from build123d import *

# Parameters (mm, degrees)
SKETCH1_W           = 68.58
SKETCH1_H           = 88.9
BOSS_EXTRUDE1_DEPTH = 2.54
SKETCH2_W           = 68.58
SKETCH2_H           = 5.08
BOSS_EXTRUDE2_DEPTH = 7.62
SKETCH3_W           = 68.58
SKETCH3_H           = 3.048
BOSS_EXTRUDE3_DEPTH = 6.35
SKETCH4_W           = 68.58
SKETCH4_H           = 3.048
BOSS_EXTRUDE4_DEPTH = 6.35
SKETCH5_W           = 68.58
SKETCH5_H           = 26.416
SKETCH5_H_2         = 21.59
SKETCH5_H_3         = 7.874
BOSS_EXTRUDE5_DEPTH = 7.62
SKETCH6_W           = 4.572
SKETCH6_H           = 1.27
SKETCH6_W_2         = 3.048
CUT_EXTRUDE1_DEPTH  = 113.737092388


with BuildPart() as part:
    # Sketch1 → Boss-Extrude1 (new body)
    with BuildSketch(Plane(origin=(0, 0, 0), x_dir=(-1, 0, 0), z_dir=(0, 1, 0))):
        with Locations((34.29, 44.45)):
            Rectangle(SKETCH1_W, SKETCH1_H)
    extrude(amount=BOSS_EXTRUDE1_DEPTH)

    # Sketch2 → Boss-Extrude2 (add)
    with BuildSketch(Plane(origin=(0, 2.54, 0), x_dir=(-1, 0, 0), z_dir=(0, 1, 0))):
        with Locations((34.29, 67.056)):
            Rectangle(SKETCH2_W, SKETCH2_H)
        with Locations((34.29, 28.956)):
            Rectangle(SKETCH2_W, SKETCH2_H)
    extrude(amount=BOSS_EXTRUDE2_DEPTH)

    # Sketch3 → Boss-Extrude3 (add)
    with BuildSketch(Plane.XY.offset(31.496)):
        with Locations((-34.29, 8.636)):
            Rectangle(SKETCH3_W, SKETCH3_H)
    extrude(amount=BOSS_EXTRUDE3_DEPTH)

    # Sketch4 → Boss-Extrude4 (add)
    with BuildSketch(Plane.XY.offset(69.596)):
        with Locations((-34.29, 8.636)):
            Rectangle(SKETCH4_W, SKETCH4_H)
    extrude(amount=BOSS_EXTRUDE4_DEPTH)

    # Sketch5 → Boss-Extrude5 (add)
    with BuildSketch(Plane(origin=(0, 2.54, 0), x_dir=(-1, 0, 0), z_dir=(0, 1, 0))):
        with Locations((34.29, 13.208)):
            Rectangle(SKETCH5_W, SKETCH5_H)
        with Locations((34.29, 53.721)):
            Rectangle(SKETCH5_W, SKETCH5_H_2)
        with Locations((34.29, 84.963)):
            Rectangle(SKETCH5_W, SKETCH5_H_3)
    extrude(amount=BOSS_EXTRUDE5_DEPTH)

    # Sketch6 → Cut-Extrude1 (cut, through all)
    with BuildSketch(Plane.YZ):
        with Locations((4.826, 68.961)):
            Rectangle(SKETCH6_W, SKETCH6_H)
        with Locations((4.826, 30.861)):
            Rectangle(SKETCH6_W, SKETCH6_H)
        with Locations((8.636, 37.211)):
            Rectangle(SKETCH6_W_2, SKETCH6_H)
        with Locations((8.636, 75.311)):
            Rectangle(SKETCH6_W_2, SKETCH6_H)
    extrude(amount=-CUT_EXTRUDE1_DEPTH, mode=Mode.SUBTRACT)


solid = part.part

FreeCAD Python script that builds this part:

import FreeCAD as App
import Part
import Sketcher
from FreeCAD import Vector
Q = App.Units.Quantity

doc = App.newDocument("Part")
params = doc.addObject("Spreadsheet::Sheet", "Params")
for row, (alias, value) in enumerate([
    ("sketch1_width", "2.7 in"),
    ("sketch1_height", "3.5 in"),
    ("pad1_length", "0.1 in"),
    ("sketch2_width", "2.7 in"),
    ("sketch2_height", "0.2 in"),
    ("pad2_length", "0.3 in"),
    ("sketch3_width", "2.7 in"),
    ("sketch3_height", "0.12 in"),
    ("pad3_length", "0.25 in"),
    ("sketch4_width", "2.7 in"),
    ("sketch4_height", "0.12 in"),
    ("pad4_length", "0.25 in"),
    ("sketch5_width", "2.7 in"),
    ("sketch5_height", "1.04 in"),
    ("sketch5_height2", "0.85 in"),
    ("sketch5_height3", "0.31 in"),
    ("pad5_length", "0.3 in"),
    ("sketch6_width", "0.18 in"),
    ("sketch6_width2", "0.12 in"),
    ("sketch6_height", "0.05 in"),
], start=1):
    params.set(f"A{row}", alias)
    params.set(f"B{row}", "=" + value)
    params.setAlias(f"B{row}", alias)

body = doc.addObject("PartDesign::Body", "Body")

# Sketch on XZ plane
sketch1 = doc.addObject("Sketcher::SketchObject", "Sketch")
body.addObject(sketch1)
sketch1.AttachmentSupport = (doc.XZ_Plane, [""])
sketch1.MapMode = "FlatFace"
sketch1.addGeometry([
    Part.LineSegment(Vector(0, 88.9, 0), Vector(0, 0, 0)),
    Part.LineSegment(Vector(0, 0, 0), Vector(-68.58, 0, 0)),
    Part.LineSegment(Vector(-68.58, 0, 0), Vector(-68.58, 88.9, 0)),
    Part.LineSegment(Vector(-68.58, 88.9, 0), Vector(0, 88.9, 0)),
], False)
sketch1.addConstraint([
    Sketcher.Constraint("Coincident", 0, 2, 1, 1),
    Sketcher.Constraint("Coincident", 1, 2, 2, 1),
    Sketcher.Constraint("Coincident", 2, 2, 3, 1),
    Sketcher.Constraint("Coincident", 3, 2, 0, 1),
    Sketcher.Constraint("Vertical", 0),
    Sketcher.Constraint("Horizontal", 1),
    Sketcher.Constraint("Vertical", 2),
    Sketcher.Constraint("Horizontal", 3),
    Sketcher.Constraint("Coincident", 0, 2, -1, 1),
    Sketcher.Constraint("DistanceX", 1, 2, 1, 1, Q("2.7 in")),
    Sketcher.Constraint("DistanceY", 0, 2, 0, 1, Q("3.5 in")),
])
sketch1.setExpression("Constraints[9]", "Params.sketch1_width")
sketch1.setExpression("Constraints[10]", "Params.sketch1_height")
pad1 = doc.addObject("PartDesign::Pad", "Pad")
body.addObject(pad1)
pad1.Profile = sketch1
pad1.setExpression("Length", "Params.pad1_length")
pad1.Reversed = True

# Sketch on XZ plane
sketch2 = doc.addObject("Sketcher::SketchObject", "Sketch001")
body.addObject(sketch2)
sketch2.AttachmentSupport = (doc.XZ_Plane, [""])
sketch2.MapMode = "FlatFace"
sketch2.AttachmentOffset = App.Placement(Vector(0, 0, -0.1 * 25.4), App.Rotation())
sketch2.addGeometry([
    Part.LineSegment(Vector(0, 69.596, 0), Vector(0, 64.516, 0)),  # 0
    Part.LineSegment(Vector(0, 64.516, 0), Vector(-68.58, 64.516, 0)),  # 1
    Part.LineSegment(Vector(-68.58, 64.516, 0), Vector(-68.58, 69.596, 0)),  # 2
    Part.LineSegment(Vector(-68.58, 69.596, 0), Vector(0, 69.596, 0)),  # 3
    Part.LineSegment(Vector(0, 31.496, 0), Vector(0, 26.416, 0)),  # 4
    Part.LineSegment(Vector(0, 26.416, 0), Vector(-68.58, 26.416, 0)),  # 5
    Part.LineSegment(Vector(-68.58, 26.416, 0), Vector(-68.58, 31.496, 0)),  # 6
    Part.LineSegment(Vector(-68.58, 31.496, 0), Vector(0, 31.496, 0)),  # 7
], False)
sketch2.addConstraint([
    Sketcher.Constraint("Coincident", 0, 2, 1, 1),
    Sketcher.Constraint("Coincident", 1, 2, 2, 1),
    Sketcher.Constraint("Coincident", 2, 2, 3, 1),
    Sketcher.Constraint("Coincident", 3, 2, 0, 1),
    Sketcher.Constraint("Coincident", 4, 2, 5, 1),
    Sketcher.Constraint("Coincident", 5, 2, 6, 1),
    Sketcher.Constraint("Coincident", 6, 2, 7, 1),
    Sketcher.Constraint("Coincident", 7, 2, 4, 1),
    Sketcher.Constraint("Vertical", 0),
    Sketcher.Constraint("Horizontal", 1),
    Sketcher.Constraint("Vertical", 2),
    Sketcher.Constraint("Horizontal", 3),
    Sketcher.Constraint("Vertical", 4),
    Sketcher.Constraint("Horizontal", 5),
    Sketcher.Constraint("Vertical", 6),
    Sketcher.Constraint("Horizontal", 7),
    Sketcher.Constraint("PointOnObject", 0, 2, -2),
    Sketcher.Constraint("PointOnObject", 4, 2, -2),
    Sketcher.Constraint("Vertical", 2, 2, 5, 2),
    Sketcher.Constraint("Equal", 2, 4),
    Sketcher.Constraint("DistanceX", 1, 2, 1, 1, Q("2.7 in")),
    Sketcher.Constraint("DistanceY", 0, 2, 0, 1, Q("0.2 in")),
    Sketcher.Constraint("DistanceY", 4, 2, 0, 2, Q("1.5 in")),
    Sketcher.Constraint("DistanceY", -1, 1, 0, 2, Q("2.54 in")),
])
sketch2.setExpression("Constraints[20]", "Params.sketch2_width")
sketch2.setExpression("Constraints[21]", "Params.sketch2_height")
pad2 = doc.addObject("PartDesign::Pad", "Pad001")
body.addObject(pad2)
pad2.Profile = sketch2
pad2.setExpression("Length", "Params.pad2_length")
pad2.Reversed = True

# Sketch on XY plane
sketch3 = doc.addObject("Sketcher::SketchObject", "Sketch002")
body.addObject(sketch3)
sketch3.AttachmentSupport = (doc.XY_Plane, [""])
sketch3.MapMode = "FlatFace"
sketch3.AttachmentOffset = App.Placement(Vector(0, 0, 1.24 * 25.4), App.Rotation())
sketch3.addGeometry([
    Part.LineSegment(Vector(-68.58, 10.16, 0), Vector(-68.58, 7.112, 0)),
    Part.LineSegment(Vector(-68.58, 7.112, 0), Vector(0, 7.112, 0)),
    Part.LineSegment(Vector(0, 7.112, 0), Vector(0, 10.16, 0)),
    Part.LineSegment(Vector(0, 10.16, 0), Vector(-68.58, 10.16, 0)),
], False)
sketch3.addConstraint([
    Sketcher.Constraint("Coincident", 0, 2, 1, 1),
    Sketcher.Constraint("Coincident", 1, 2, 2, 1),
    Sketcher.Constraint("Coincident", 2, 2, 3, 1),
    Sketcher.Constraint("Coincident", 3, 2, 0, 1),
    Sketcher.Constraint("Vertical", 0),
    Sketcher.Constraint("Horizontal", 1),
    Sketcher.Constraint("Vertical", 2),
    Sketcher.Constraint("Horizontal", 3),
    Sketcher.Constraint("PointOnObject", 1, 2, -2),
    Sketcher.Constraint("DistanceX", 1, 1, 1, 2, Q("2.7 in")),
    Sketcher.Constraint("DistanceY", 0, 2, 0, 1, Q("0.12 in")),
    Sketcher.Constraint("DistanceY", -1, 1, 2, 2, Q("0.4 in")),
])
sketch3.setExpression("Constraints[9]", "Params.sketch3_width")
sketch3.setExpression("Constraints[10]", "Params.sketch3_height")
pad3 = doc.addObject("PartDesign::Pad", "Pad002")
body.addObject(pad3)
pad3.Profile = sketch3
pad3.setExpression("Length", "Params.pad3_length")

# Sketch on XY plane
sketch4 = doc.addObject("Sketcher::SketchObject", "Sketch003")
body.addObject(sketch4)
sketch4.AttachmentSupport = (doc.XY_Plane, [""])
sketch4.MapMode = "FlatFace"
sketch4.AttachmentOffset = App.Placement(Vector(0, 0, 2.74 * 25.4), App.Rotation())
sketch4.addGeometry([
    Part.LineSegment(Vector(-68.58, 10.16, 0), Vector(-68.58, 7.112, 0)),
    Part.LineSegment(Vector(-68.58, 7.112, 0), Vector(0, 7.112, 0)),
    Part.LineSegment(Vector(0, 7.112, 0), Vector(0, 10.16, 0)),
    Part.LineSegment(Vector(0, 10.16, 0), Vector(-68.58, 10.16, 0)),
], False)
sketch4.addConstraint([
    Sketcher.Constraint("Coincident", 0, 2, 1, 1),
    Sketcher.Constraint("Coincident", 1, 2, 2, 1),
    Sketcher.Constraint("Coincident", 2, 2, 3, 1),
    Sketcher.Constraint("Coincident", 3, 2, 0, 1),
    Sketcher.Constraint("Vertical", 0),
    Sketcher.Constraint("Horizontal", 1),
    Sketcher.Constraint("Vertical", 2),
    Sketcher.Constraint("Horizontal", 3),
    Sketcher.Constraint("PointOnObject", 1, 2, -2),
    Sketcher.Constraint("DistanceX", 1, 1, 1, 2, Q("2.7 in")),
    Sketcher.Constraint("DistanceY", 0, 2, 0, 1, Q("0.12 in")),
    Sketcher.Constraint("DistanceY", -1, 1, 2, 2, Q("0.4 in")),
])
sketch4.setExpression("Constraints[9]", "Params.sketch4_width")
sketch4.setExpression("Constraints[10]", "Params.sketch4_height")
pad4 = doc.addObject("PartDesign::Pad", "Pad003")
body.addObject(pad4)
pad4.Profile = sketch4
pad4.setExpression("Length", "Params.pad4_length")

# Sketch on XZ plane
sketch5 = doc.addObject("Sketcher::SketchObject", "Sketch004")
body.addObject(sketch5)
sketch5.AttachmentSupport = (doc.XZ_Plane, [""])
sketch5.MapMode = "FlatFace"
sketch5.AttachmentOffset = App.Placement(Vector(0, 0, -0.1 * 25.4), App.Rotation())
sketch5.addGeometry([
    Part.LineSegment(Vector(0, 26.416, 0), Vector(0, 0, 0)),  # 0
    Part.LineSegment(Vector(0, 0, 0), Vector(-68.58, 0, 0)),  # 1
    Part.LineSegment(Vector(-68.58, 0, 0), Vector(-68.58, 26.416, 0)),  # 2
    Part.LineSegment(Vector(-68.58, 26.416, 0), Vector(0, 26.416, 0)),  # 3
    Part.LineSegment(Vector(0, 64.516, 0), Vector(0, 42.926, 0)),  # 4
    Part.LineSegment(Vector(0, 42.926, 0), Vector(-68.58, 42.926, 0)),  # 5
    Part.LineSegment(Vector(-68.58, 42.926, 0), Vector(-68.58, 64.516, 0)),  # 6
    Part.LineSegment(Vector(-68.58, 64.516, 0), Vector(0, 64.516, 0)),  # 7
    Part.LineSegment(Vector(0, 88.9, 0), Vector(0, 81.026, 0)),  # 8
    Part.LineSegment(Vector(0, 81.026, 0), Vector(-68.58, 81.026, 0)),  # 9
    Part.LineSegment(Vector(-68.58, 81.026, 0), Vector(-68.58, 88.9, 0)),  # 10
    Part.LineSegment(Vector(-68.58, 88.9, 0), Vector(0, 88.9, 0)),  # 11
], False)
sketch5.addConstraint([
    Sketcher.Constraint("Coincident", 0, 2, 1, 1),
    Sketcher.Constraint("Coincident", 1, 2, 2, 1),
    Sketcher.Constraint("Coincident", 2, 2, 3, 1),
    Sketcher.Constraint("Coincident", 3, 2, 0, 1),
    Sketcher.Constraint("Coincident", 4, 2, 5, 1),
    Sketcher.Constraint("Coincident", 5, 2, 6, 1),
    Sketcher.Constraint("Coincident", 6, 2, 7, 1),
    Sketcher.Constraint("Coincident", 7, 2, 4, 1),
    Sketcher.Constraint("Coincident", 8, 2, 9, 1),
    Sketcher.Constraint("Coincident", 9, 2, 10, 1),
    Sketcher.Constraint("Coincident", 10, 2, 11, 1),
    Sketcher.Constraint("Coincident", 11, 2, 8, 1),
    Sketcher.Constraint("Vertical", 0),
    Sketcher.Constraint("Horizontal", 1),
    Sketcher.Constraint("Vertical", 2),
    Sketcher.Constraint("Horizontal", 3),
    Sketcher.Constraint("Vertical", 4),
    Sketcher.Constraint("Horizontal", 5),
    Sketcher.Constraint("Vertical", 6),
    Sketcher.Constraint("Horizontal", 7),
    Sketcher.Constraint("Vertical", 8),
    Sketcher.Constraint("Horizontal", 9),
    Sketcher.Constraint("Vertical", 10),
    Sketcher.Constraint("Horizontal", 11),
    Sketcher.Constraint("Coincident", 0, 2, -1, 1),
    Sketcher.Constraint("PointOnObject", 4, 2, -2),
    Sketcher.Constraint("PointOnObject", 8, 2, -2),
    Sketcher.Constraint("Vertical", 2, 2, 5, 2),
    Sketcher.Constraint("Vertical", 6, 2, 9, 2),
    Sketcher.Constraint("DistanceX", 1, 2, 1, 1, Q("2.7 in")),
    Sketcher.Constraint("DistanceY", 0, 2, 0, 1, Q("1.04 in")),
    Sketcher.Constraint("DistanceY", 4, 2, 4, 1, Q("0.85 in")),
    Sketcher.Constraint("DistanceY", 8, 2, 8, 1, Q("0.31 in")),
    Sketcher.Constraint("DistanceY", -1, 1, 10, 2, Q("3.5 in")),
    Sketcher.Constraint("DistanceY", 2, 2, 6, 2, Q("1.5 in")),
])
sketch5.setExpression("Constraints[29]", "Params.sketch5_width")
sketch5.setExpression("Constraints[30]", "Params.sketch5_height")
sketch5.setExpression("Constraints[31]", "Params.sketch5_height2")
sketch5.setExpression("Constraints[32]", "Params.sketch5_height3")
pad5 = doc.addObject("PartDesign::Pad", "Pad004")
body.addObject(pad5)
pad5.Profile = sketch5
pad5.setExpression("Length", "Params.pad5_length")
pad5.Reversed = True

# Sketch on YZ plane
sketch6 = doc.addObject("Sketcher::SketchObject", "Sketch005")
body.addObject(sketch6)
sketch6.AttachmentSupport = (doc.YZ_Plane, [""])
sketch6.MapMode = "FlatFace"
sketch6.addGeometry([
    Part.LineSegment(Vector(2.54, 69.596, 0), Vector(2.54, 68.326, 0)),  # 0
    Part.LineSegment(Vector(2.54, 68.326, 0), Vector(7.112, 68.326, 0)),  # 1
    Part.LineSegment(Vector(7.112, 68.326, 0), Vector(7.112, 69.596, 0)),  # 2
    Part.LineSegment(Vector(7.112, 69.596, 0), Vector(2.54, 69.596, 0)),  # 3
    Part.LineSegment(Vector(2.54, 31.496, 0), Vector(2.54, 30.226, 0)),  # 4
    Part.LineSegment(Vector(2.54, 30.226, 0), Vector(7.112, 30.226, 0)),  # 5
    Part.LineSegment(Vector(7.112, 30.226, 0), Vector(7.112, 31.496, 0)),  # 6
    Part.LineSegment(Vector(7.112, 31.496, 0), Vector(2.54, 31.496, 0)),  # 7
    Part.LineSegment(Vector(7.112, 37.846, 0), Vector(7.112, 36.576, 0)),  # 8
    Part.LineSegment(Vector(7.112, 36.576, 0), Vector(10.16, 36.576, 0)),  # 9
    Part.LineSegment(Vector(10.16, 36.576, 0), Vector(10.16, 37.846, 0)),  # 10
    Part.LineSegment(Vector(10.16, 37.846, 0), Vector(7.112, 37.846, 0)),  # 11
    Part.LineSegment(Vector(7.112, 75.946, 0), Vector(7.112, 74.676, 0)),  # 12
    Part.LineSegment(Vector(7.112, 74.676, 0), Vector(10.16, 74.676, 0)),  # 13
    Part.LineSegment(Vector(10.16, 74.676, 0), Vector(10.16, 75.946, 0)),  # 14
    Part.LineSegment(Vector(10.16, 75.946, 0), Vector(7.112, 75.946, 0)),  # 15
], False)
sketch6.addConstraint([
    Sketcher.Constraint("Coincident", 0, 2, 1, 1),
    Sketcher.Constraint("Coincident", 1, 2, 2, 1),
    Sketcher.Constraint("Coincident", 2, 2, 3, 1),
    Sketcher.Constraint("Coincident", 3, 2, 0, 1),
    Sketcher.Constraint("Coincident", 4, 2, 5, 1),
    Sketcher.Constraint("Coincident", 5, 2, 6, 1),
    Sketcher.Constraint("Coincident", 6, 2, 7, 1),
    Sketcher.Constraint("Coincident", 7, 2, 4, 1),
    Sketcher.Constraint("Coincident", 8, 2, 9, 1),
    Sketcher.Constraint("Coincident", 9, 2, 10, 1),
    Sketcher.Constraint("Coincident", 10, 2, 11, 1),
    Sketcher.Constraint("Coincident", 11, 2, 8, 1),
    Sketcher.Constraint("Coincident", 12, 2, 13, 1),
    Sketcher.Constraint("Coincident", 13, 2, 14, 1),
    Sketcher.Constraint("Coincident", 14, 2, 15, 1),
    Sketcher.Constraint("Coincident", 15, 2, 12, 1),
    Sketcher.Constraint("Vertical", 0),
    Sketcher.Constraint("Horizontal", 1),
    Sketcher.Constraint("Vertical", 2),
    Sketcher.Constraint("Horizontal", 3),
    Sketcher.Constraint("Vertical", 4),
    Sketcher.Constraint("Horizontal", 5),
    Sketcher.Constraint("Vertical", 6),
    Sketcher.Constraint("Horizontal", 7),
    Sketcher.Constraint("Vertical", 8),
    Sketcher.Constraint("Horizontal", 9),
    Sketcher.Constraint("Vertical", 10),
    Sketcher.Constraint("Horizontal", 11),
    Sketcher.Constraint("Vertical", 12),
    Sketcher.Constraint("Horizontal", 13),
    Sketcher.Constraint("Vertical", 14),
    Sketcher.Constraint("Horizontal", 15),
    Sketcher.Constraint("Vertical", 3, 2, 4, 2),
    Sketcher.Constraint("Vertical", 2, 2, 5, 2),
    Sketcher.Constraint("Vertical", 6, 2, 8, 2),
    Sketcher.Constraint("Vertical", 11, 2, 12, 2),
    Sketcher.Constraint("Vertical", 10, 2, 13, 2),
    Sketcher.Constraint("Equal", 2, 4),
    Sketcher.Constraint("Equal", 6, 8),
    Sketcher.Constraint("Equal", 10, 12),
    Sketcher.Constraint("DistanceX", 1, 1, 1, 2, Q("0.18 in")),
    Sketcher.Constraint("DistanceX", 9, 1, 9, 2, Q("0.12 in")),
    Sketcher.Constraint("DistanceY", 0, 2, 0, 1, Q("0.05 in")),
    Sketcher.Constraint("DistanceX", -1, 1, 0, 2, Q("0.1 in")),
    Sketcher.Constraint("DistanceY", 4, 2, 0, 2, Q("1.5 in")),
    Sketcher.Constraint("DistanceY", 6, 2, 8, 2, Q("0.2 in")),
    Sketcher.Constraint("DistanceY", 2, 2, 12, 2, Q("0.2 in")),
    Sketcher.Constraint("DistanceY", -1, 1, 0, 2, Q("2.69 in")),
])
sketch6.setExpression("Constraints[40]", "Params.sketch6_width")
sketch6.setExpression("Constraints[41]", "Params.sketch6_width2")
sketch6.setExpression("Constraints[42]", "Params.sketch6_height")
pocket1 = doc.addObject("PartDesign::Pocket", "Pocket")
body.addObject(pocket1)
pocket1.Profile = sketch6
pocket1.Type = "ThroughAll"

doc.recompute()
